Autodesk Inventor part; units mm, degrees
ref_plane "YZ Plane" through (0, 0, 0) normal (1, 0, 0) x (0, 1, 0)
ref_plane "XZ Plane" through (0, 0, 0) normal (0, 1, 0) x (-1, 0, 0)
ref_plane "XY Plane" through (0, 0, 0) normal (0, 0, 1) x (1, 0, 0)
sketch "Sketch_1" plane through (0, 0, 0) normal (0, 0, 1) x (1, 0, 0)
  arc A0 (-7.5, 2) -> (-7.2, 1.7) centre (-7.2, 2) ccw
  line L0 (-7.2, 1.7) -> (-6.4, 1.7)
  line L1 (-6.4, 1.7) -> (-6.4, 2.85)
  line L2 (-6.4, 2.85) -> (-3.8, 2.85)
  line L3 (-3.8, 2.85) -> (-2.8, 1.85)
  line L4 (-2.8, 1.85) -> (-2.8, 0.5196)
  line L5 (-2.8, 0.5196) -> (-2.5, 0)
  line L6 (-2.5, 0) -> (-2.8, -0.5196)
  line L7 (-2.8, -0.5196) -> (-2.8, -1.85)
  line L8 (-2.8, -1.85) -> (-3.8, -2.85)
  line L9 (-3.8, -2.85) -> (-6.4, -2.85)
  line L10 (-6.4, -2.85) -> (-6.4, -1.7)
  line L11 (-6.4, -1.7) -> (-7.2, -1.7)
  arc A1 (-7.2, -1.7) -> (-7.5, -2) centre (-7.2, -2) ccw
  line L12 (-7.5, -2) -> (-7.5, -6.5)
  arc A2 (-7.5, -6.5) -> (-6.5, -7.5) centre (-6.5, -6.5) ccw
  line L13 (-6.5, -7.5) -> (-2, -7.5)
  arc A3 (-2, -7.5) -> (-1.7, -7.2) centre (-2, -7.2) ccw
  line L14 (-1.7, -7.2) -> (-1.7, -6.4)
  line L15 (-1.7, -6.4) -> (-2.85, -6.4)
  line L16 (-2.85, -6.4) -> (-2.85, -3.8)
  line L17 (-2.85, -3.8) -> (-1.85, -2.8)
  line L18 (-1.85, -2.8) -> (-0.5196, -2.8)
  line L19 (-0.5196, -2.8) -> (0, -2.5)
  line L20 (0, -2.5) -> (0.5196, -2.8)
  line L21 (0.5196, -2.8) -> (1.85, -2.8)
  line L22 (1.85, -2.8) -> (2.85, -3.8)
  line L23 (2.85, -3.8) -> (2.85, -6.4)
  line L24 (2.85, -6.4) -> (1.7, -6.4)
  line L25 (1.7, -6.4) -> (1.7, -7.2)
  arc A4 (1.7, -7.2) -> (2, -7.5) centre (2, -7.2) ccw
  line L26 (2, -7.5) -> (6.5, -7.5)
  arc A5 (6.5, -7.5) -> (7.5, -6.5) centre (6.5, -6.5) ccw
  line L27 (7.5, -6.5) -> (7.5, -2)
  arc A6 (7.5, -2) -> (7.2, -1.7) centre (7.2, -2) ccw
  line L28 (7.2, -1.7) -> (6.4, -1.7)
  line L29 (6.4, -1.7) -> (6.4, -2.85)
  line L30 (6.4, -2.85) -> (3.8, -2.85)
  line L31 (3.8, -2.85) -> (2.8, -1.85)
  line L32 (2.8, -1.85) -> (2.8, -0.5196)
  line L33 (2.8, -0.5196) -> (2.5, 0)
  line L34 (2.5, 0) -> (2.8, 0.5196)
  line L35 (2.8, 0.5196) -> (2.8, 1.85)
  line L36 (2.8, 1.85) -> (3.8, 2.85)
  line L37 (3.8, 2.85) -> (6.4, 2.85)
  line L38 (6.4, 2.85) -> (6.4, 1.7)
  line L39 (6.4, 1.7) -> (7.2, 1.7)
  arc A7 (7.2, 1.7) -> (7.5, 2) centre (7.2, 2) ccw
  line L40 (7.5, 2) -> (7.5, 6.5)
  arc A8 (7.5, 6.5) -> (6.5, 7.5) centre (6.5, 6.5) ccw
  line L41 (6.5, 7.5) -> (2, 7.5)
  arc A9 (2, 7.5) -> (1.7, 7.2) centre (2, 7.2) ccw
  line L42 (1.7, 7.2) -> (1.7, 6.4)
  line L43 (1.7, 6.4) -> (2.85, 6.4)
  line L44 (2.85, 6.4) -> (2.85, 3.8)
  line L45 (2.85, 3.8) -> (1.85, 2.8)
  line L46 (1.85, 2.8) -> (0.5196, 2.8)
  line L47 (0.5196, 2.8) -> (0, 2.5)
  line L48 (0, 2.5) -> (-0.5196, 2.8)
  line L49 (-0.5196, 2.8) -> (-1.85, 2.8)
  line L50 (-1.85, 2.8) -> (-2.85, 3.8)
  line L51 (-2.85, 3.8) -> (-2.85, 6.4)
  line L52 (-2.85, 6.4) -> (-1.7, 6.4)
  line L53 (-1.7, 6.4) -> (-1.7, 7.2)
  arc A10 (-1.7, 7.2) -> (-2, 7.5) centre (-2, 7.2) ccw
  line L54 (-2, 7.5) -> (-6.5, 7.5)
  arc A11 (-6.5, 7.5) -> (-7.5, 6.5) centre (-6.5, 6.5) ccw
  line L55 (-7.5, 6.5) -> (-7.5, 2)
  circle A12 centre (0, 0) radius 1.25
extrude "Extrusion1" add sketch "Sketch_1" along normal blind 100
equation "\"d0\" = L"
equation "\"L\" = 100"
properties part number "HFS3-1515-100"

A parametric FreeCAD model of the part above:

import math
import FreeCAD as App
import Part
import Sketcher

V = App.Vector
Q = App.Units.Quantity

doc = App.newDocument("Part")
params = doc.addObject("Spreadsheet::Sheet", "Params")
for row, (alias, value) in enumerate([
    ("sketch1_radius", "1 mm"),
    ("sketch1_diameter", "2.5 mm"),
    ("sketch1_radius2", "0.3 mm"),
    ("sketch1_width", "0.8 mm"),
    ("sketch1_width2", "2.6 mm"),
    ("pad1_length", "100 mm"),
], start=1):
    params.set(f"A{row}", alias)
    params.set(f"B{row}", "=" + value)
    params.setAlias(f"B{row}", alias)

body = doc.addObject("PartDesign::Body", "Body")

# Sketch on XY plane
sketch1 = doc.addObject("Sketcher::SketchObject", "Sketch")
body.addObject(sketch1)
sketch1.AttachmentSupport = (doc.XY_Plane, [""])
sketch1.MapMode = "FlatFace"
sketch1.addGeometry([
    Part.LineSegment(V(-7.5, 6.5, 0), V(-7.5, 2, 0)),  # 0
    Part.ArcOfCircle(Part.Circle(V(-7.2, 2, 0), V(0, 0, 1), 0.3), math.radians(180), math.radians(270)),  # 1
    Part.LineSegment(V(-7.2, 1.7, 0), V(-6.4, 1.7, 0)),  # 2
    Part.LineSegment(V(-6.4, 1.7, 0), V(-6.4, 2.85, 0)),  # 3
    Part.LineSegment(V(-6.4, 2.85, 0), V(-3.8, 2.85, 0)),  # 4
    Part.LineSegment(V(-3.8, 2.85, 0), V(-2.8, 1.85, 0)),  # 5
    Part.LineSegment(V(-2.8, 1.85, 0), V(-2.8, 0.52, 0)),  # 6
    Part.LineSegment(V(-2.8, 0.52, 0), V(-2.5, 0, 0)),  # 7
    Part.LineSegment(V(-2.5, 0, 0), V(-2.8, -0.52, 0)),  # 8
    Part.LineSegment(V(-2.8, -0.52, 0), V(-2.8, -1.85, 0)),  # 9
    Part.LineSegment(V(-2.8, -1.85, 0), V(-3.8, -2.85, 0)),  # 10
    Part.LineSegment(V(-3.8, -2.85, 0), V(-6.4, -2.85, 0)),  # 11
    Part.LineSegment(V(-6.4, -2.85, 0), V(-6.4, -1.7, 0)),  # 12
    Part.LineSegment(V(-6.4, -1.7, 0), V(-7.2, -1.7, 0)),  # 13
    Part.ArcOfCircle(Part.Circle(V(-7.2, -2, 0), V(0, 0, 1), 0.3), math.radians(90), math.radians(180)),  # 14
    Part.LineSegment(V(-7.5, -2, 0), V(-7.5, -6.5, 0)),  # 15
    Part.ArcOfCircle(Part.Circle(V(-6.5, -6.5, 0), V(0, 0, 1), 1), math.radians(180), math.radians(270)),  # 16
    Part.LineSegment(V(-6.5, -7.5, 0), V(-2, -7.5, 0)),  # 17
    Part.ArcOfCircle(Part.Circle(V(-2, -7.2, 0), V(0, 0, 1), 0.3), math.radians(-90), math.radians(0)),  # 18
    Part.LineSegment(V(-1.7, -7.2, 0), V(-1.7, -6.4, 0)),  # 19
    Part.LineSegment(V(-1.7, -6.4, 0), V(-2.85, -6.4, 0)),  # 20
    Part.LineSegment(V(-2.85, -6.4, 0), V(-2.85, -3.8, 0)),  # 21
    Part.LineSegment(V(-2.85, -3.8, 0), V(-1.85, -2.8, 0)),  # 22
    Part.LineSegment(V(-1.85, -2.8, 0), V(-0.52, -2.8, 0)),  # 23
    Part.LineSegment(V(-0.52, -2.8, 0), V(0, -2.5, 0)),  # 24
    Part.LineSegment(V(0, -2.5, 0), V(0.52, -2.8, 0)),  # 25
    Part.LineSegment(V(0.52, -2.8, 0), V(1.85, -2.8, 0)),  # 26
    Part.LineSegment(V(1.85, -2.8, 0), V(2.85, -3.8, 0)),  # 27
    Part.LineSegment(V(2.85, -3.8, 0), V(2.85, -6.4, 0)),  # 28
    Part.LineSegment(V(2.85, -6.4, 0), V(1.7, -6.4, 0)),  # 29
    Part.LineSegment(V(1.7, -6.4, 0), V(1.7, -7.2, 0)),  # 30
    Part.ArcOfCircle(Part.Circle(V(2, -7.2, 0), V(0, 0, 1), 0.3), math.radians(180), math.radians(270)),  # 31
    Part.LineSegment(V(2, -7.5, 0), V(6.5, -7.5, 0)),  # 32
    Part.ArcOfCircle(Part.Circle(V(6.5, -6.5, 0), V(0, 0, 1), 1), math.radians(-90), math.radians(0)),  # 33
    Part.LineSegment(V(7.5, -6.5, 0), V(7.5, -2, 0)),  # 34
    Part.ArcOfCircle(Part.Circle(V(7.2, -2, 0), V(0, 0, 1), 0.3), math.radians(0), math.radians(90)),  # 35
    Part.LineSegment(V(7.2, -1.7, 0), V(6.4, -1.7, 0)),  # 36
    Part.LineSegment(V(6.4, -1.7, 0), V(6.4, -2.85, 0)),  # 37
    Part.LineSegment(V(6.4, -2.85, 0), V(3.8, -2.85, 0)),  # 38
    Part.LineSegment(V(3.8, -2.85, 0), V(2.8, -1.85, 0)),  # 39
    Part.LineSegment(V(2.8, -1.85, 0), V(2.8, -0.52, 0)),  # 40
    Part.LineSegment(V(2.8, -0.52, 0), V(2.5, 0, 0)),  # 41
    Part.LineSegment(V(2.5, 0, 0), V(2.8, 0.52, 0)),  # 42
    Part.LineSegment(V(2.8, 0.52, 0), V(2.8, 1.85, 0)),  # 43
    Part.LineSegment(V(2.8, 1.85, 0), V(3.8, 2.85, 0)),  # 44
    Part.LineSegment(V(3.8, 2.85, 0), V(6.4, 2.85, 0)),  # 45
    Part.LineSegment(V(6.4, 2.85, 0), V(6.4, 1.7, 0)),  # 46
    Part.LineSegment(V(6.4, 1.7, 0), V(7.2, 1.7, 0)),  # 47
    Part.ArcOfCircle(Part.Circle(V(7.2, 2, 0), V(0, 0, 1), 0.3), math.radians(-90), math.radians(0)),  # 48
    Part.LineSegment(V(7.5, 2, 0), V(7.5, 6.5, 0)),  # 49
    Part.ArcOfCircle(Part.Circle(V(6.5, 6.5, 0), V(0, 0, 1), 1), math.radians(0), math.radians(90)),  # 50
    Part.LineSegment(V(6.5, 7.5, 0), V(2, 7.5, 0)),  # 51
    Part.ArcOfCircle(Part.Circle(V(2, 7.2, 0), V(0, 0, 1), 0.3), math.radians(90), math.radians(180)),  # 52
    Part.LineSegment(V(1.7, 7.2, 0), V(1.7, 6.4, 0)),  # 53
    Part.LineSegment(V(1.7, 6.4, 0), V(2.85, 6.4, 0)),  # 54
    Part.LineSegment(V(2.85, 6.4, 0), V(2.85, 3.8, 0)),  # 55
    Part.LineSegment(V(2.85, 3.8, 0), V(1.85, 2.8, 0)),  # 56
    Part.LineSegment(V(1.85, 2.8, 0), V(0.52, 2.8, 0)),  # 57
    Part.LineSegment(V(0.52, 2.8, 0), V(0, 2.5, 0)),  # 58
    Part.LineSegment(V(0, 2.5, 0), V(-0.52, 2.8, 0)),  # 59
    Part.LineSegment(V(-0.52, 2.8, 0), V(-1.85, 2.8, 0)),  # 60
    Part.LineSegment(V(-1.85, 2.8, 0), V(-2.85, 3.8, 0)),  # 61
    Part.LineSegment(V(-2.85, 3.8, 0), V(-2.85, 6.4, 0)),  # 62
    Part.LineSegment(V(-2.85, 6.4, 0), V(-1.7, 6.4, 0)),  # 63
    Part.LineSegment(V(-1.7, 6.4, 0), V(-1.7, 7.2, 0)),  # 64
    Part.ArcOfCircle(Part.Circle(V(-2, 7.2, 0), V(0, 0, 1), 0.3), math.radians(0), math.radians(90)),  # 65
    Part.LineSegment(V(-2, 7.5, 0), V(-6.5, 7.5, 0)),  # 66
    Part.ArcOfCircle(Part.Circle(V(-6.5, 6.5, 0), V(0, 0, 1), 1), math.radians(90), math.radians(180)),  # 67
    Part.Circle(V(0, 0, 0), V(0, 0, 1), 1.25),  # 68
], False)
sketch1.addConstraint([
    Sketcher.Constraint("Tangent", 0, 2, 1, 1),
    Sketcher.Constraint("Tangent", 1, 2, 2, 1),
    Sketcher.Constraint("Coincident", 2, 2, 3, 1),
    Sketcher.Constraint("Coincident", 3, 2, 4, 1),
    Sketcher.Constraint("Coincident", 4, 2, 5, 1),
    Sketcher.Constraint("Coincident", 5, 2, 6, 1),
    Sketcher.Constraint("Coincident", 6, 2, 7, 1),
    Sketcher.Constraint("Coincident", 7, 2, 8, 1),
    Sketcher.Constraint("Coincident", 8, 2, 9, 1),
    Sketcher.Constraint("Coincident", 9, 2, 10, 1),
    Sketcher.Constraint("Coincident", 10, 2, 11, 1),
    Sketcher.Constraint("Coincident", 11, 2, 12, 1),
    Sketcher.Constraint("Coincident", 12, 2, 13, 1),
    Sketcher.Constraint("Tangent", 13, 2, 14, 1),
    Sketcher.Constraint("Tangent", 14, 2, 15, 1),
    Sketcher.Constraint("Tangent", 15, 2, 16, 1),
    Sketcher.Constraint("Tangent", 16, 2, 17, 1),
    Sketcher.Constraint("Tangent", 17, 2, 18, 1),
    Sketcher.Constraint("Tangent", 18, 2, 19, 1),
    Sketcher.Constraint("Coincident", 19, 2, 20, 1),
    Sketcher.Constraint("Coincident", 20, 2, 21, 1),
    Sketcher.Constraint("Coincident", 21, 2, 22, 1),
    Sketcher.Constraint("Coincident", 22, 2, 23, 1),
    Sketcher.Constraint("Coincident", 23, 2, 24, 1),
    Sketcher.Constraint("Coincident", 24, 2, 25, 1),
    Sketcher.Constraint("Coincident", 25, 2, 26, 1),
    Sketcher.Constraint("Coincident", 26, 2, 27, 1),
    Sketcher.Constraint("Coincident", 27, 2, 28, 1),
    Sketcher.Constraint("Coincident", 28, 2, 29, 1),
    Sketcher.Constraint("Coincident", 29, 2, 30, 1),
    Sketcher.Constraint("Tangent", 30, 2, 31, 1),
    Sketcher.Constraint("Tangent", 31, 2, 32, 1),
    Sketcher.Constraint("Tangent", 32, 2, 33, 1),
    Sketcher.Constraint("Tangent", 33, 2, 34, 1),
    Sketcher.Constraint("Tangent", 34, 2, 35, 1),
    Sketcher.Constraint("Tangent", 35, 2, 36, 1),
    Sketcher.Constraint("Coincident", 36, 2, 37, 1),
    Sketcher.Constraint("Coincident", 37, 2, 38, 1),
    Sketcher.Constraint("Coincident", 38, 2, 39, 1),
    Sketcher.Constraint("Coincident", 39, 2, 40, 1),
    Sketcher.Constraint("Coincident", 40, 2, 41, 1),
    Sketcher.Constraint("Coincident", 41, 2, 42, 1),
    Sketcher.Constraint("Coincident", 42, 2, 43, 1),
    Sketcher.Constraint("Coincident", 43, 2, 44, 1),
    Sketcher.Constraint("Coincident", 44, 2, 45, 1),
    Sketcher.Constraint("Coincident", 45, 2, 46, 1),
    Sketcher.Constraint("Coincident", 46, 2, 47, 1),
    Sketcher.Constraint("Tangent", 47, 2, 48, 1),
    Sketcher.Constraint("Tangent", 48, 2, 49, 1),
    Sketcher.Constraint("Tangent", 49, 2, 50, 1),
    Sketcher.Constraint("Tangent", 50, 2, 51, 1),
    Sketcher.Constraint("Tangent", 51, 2, 52, 1),
    Sketcher.Constraint("Tangent", 52, 2, 53, 1),
    Sketcher.Constraint("Coincident", 53, 2, 54, 1),
    Sketcher.Constraint("Coincident", 54, 2, 55, 1),
    Sketcher.Constraint("Coincident", 55, 2, 56, 1),
    Sketcher.Constraint("Coincident", 56, 2, 57, 1),
    Sketcher.Constraint("Coincident", 57, 2, 58, 1),
    Sketcher.Constraint("Coincident", 58, 2, 59, 1),
    Sketcher.Constraint("Coincident", 59, 2, 60, 1),
    Sketcher.Constraint("Coincident", 60, 2, 61, 1),
    Sketcher.Constraint("Coincident", 61, 2, 62, 1),
    Sketcher.Constraint("Coincident", 62, 2, 63, 1),
    Sketcher.Constraint("Coincident", 63, 2, 64, 1),
    Sketcher.Constraint("Tangent", 64, 2, 65, 1),
    Sketcher.Constraint("Tangent", 65, 2, 66, 1),
    Sketcher.Constraint("Tangent", 66, 2, 67, 1),
    Sketcher.Constraint("Tangent", 67, 2, 0, 1),
    Sketcher.Constraint("Vertical", 0),
    Sketcher.Constraint("Horizontal", 2),
    Sketcher.Constraint("Vertical", 3),
    Sketcher.Constraint("Horizontal", 4),
    Sketcher.Constraint("Vertical", 6),
    Sketcher.Constraint("Vertical", 9),
    Sketcher.Constraint("Horizontal", 11),
    Sketcher.Constraint("Vertical", 12),
    Sketcher.Constraint("Horizontal", 13),
    Sketcher.Constraint("Vertical", 15),
    Sketcher.Constraint("Horizontal", 17),
    Sketcher.Constraint("Vertical", 19),
    Sketcher.Constraint("Horizontal", 20),
    Sketcher.Constraint("Vertical", 21),
    Sketcher.Constraint("Horizontal", 23),
    Sketcher.Constraint("Horizontal", 26),
    Sketcher.Constraint("Vertical", 28),
    Sketcher.Constraint("Horizontal", 29),
    Sketcher.Constraint("Vertical", 30),
    Sketcher.Constraint("Horizontal", 32),
    Sketcher.Constraint("Vertical", 34),
    Sketcher.Constraint("Horizontal", 36),
    Sketcher.Constraint("Vertical", 37),
    Sketcher.Constraint("Horizontal", 38),
    Sketcher.Constraint("Vertical", 40),
    Sketcher.Constraint("Vertical", 43),
    Sketcher.Constraint("Horizontal", 45),
    Sketcher.Constraint("Vertical", 46),
    Sketcher.Constraint("Horizontal", 47),
    Sketcher.Constraint("Vertical", 49),
    Sketcher.Constraint("Horizontal", 51),
    Sketcher.Constraint("Vertical", 53),
    Sketcher.Constraint("Horizontal", 54),
    Sketcher.Constraint("Vertical", 55),
    Sketcher.Constraint("Horizontal", 57),
    Sketcher.Constraint("Horizontal", 60),
    Sketcher.Constraint("Vertical", 62),
    Sketcher.Constraint("Horizontal", 63),
    Sketcher.Constraint("Vertical", 64),
    Sketcher.Constraint("Horizontal", 66),
    Sketcher.Constraint("Coincident", 68, 3, -1, 1),
    Sketcher.Constraint("Equal", 1, 14),
    Sketcher.Constraint("Equal", 14, 18),
    Sketcher.Constraint("Equal", 18, 31),
    Sketcher.Constraint("Equal", 16, 33),
    Sketcher.Constraint("Equal", 31, 35),
    Sketcher.Constraint("Equal", 35, 48),
    Sketcher.Constraint("Equal", 33, 50),
    Sketcher.Constraint("Equal", 48, 52),
    Sketcher.Constraint("Equal", 52, 65),
    Sketcher.Constraint("Equal", 50, 67),
    Sketcher.Constraint("Symmetric", 1, 3, 35, 3, -1, 1),
    Sketcher.Constraint("Symmetric", 14, 3, 48, 3, -1, 1),
    Sketcher.Constraint("Symmetric", 18, 3, 52, 3, -1, 1),
    Sketcher.Constraint("Symmetric", 31, 3, 65, 3, -1, 1),
    Sketcher.Constraint("Symmetric", 3, 2, 37, 2, -1, 1),
    Sketcher.Constraint("Symmetric", 5, 2, 39, 2, -1, 1),
    Sketcher.Constraint("Symmetric", 7, 2, 41, 2, -1, 1),
    Sketcher.Constraint("Symmetric", 8, 2, 42, 2, -1, 1),
    Sketcher.Constraint("Symmetric", 10, 2, 44, 2, -1, 1),
    Sketcher.Constraint("Symmetric", 20, 2, 54, 2, -1, 1),
    Sketcher.Constraint("Symmetric", 22, 2, 56, 2, -1, 1),
    Sketcher.Constraint("Symmetric", 24, 2, 58, 2, -1, 1),
    Sketcher.Constraint("Symmetric", 25, 2, 59, 2, -1, 1),
    Sketcher.Constraint("Symmetric", 27, 2, 61, 2, -1, 1),
    Sketcher.Constraint("Symmetric", 18, 3, 31, 3, -2),
    Sketcher.Constraint("Symmetric", 14, 3, 35, 3, -2),
    Sketcher.Constraint("Symmetric", 23, 2, 25, 2, -2),
    Sketcher.Constraint("Symmetric", 21, 2, 27, 2, -2),
    Sketcher.Constraint("Symmetric", 11, 2, 37, 2, -2),
    Sketcher.Constraint("Symmetric", 9, 2, 39, 2, -2),
    Sketcher.Constraint("PointOnObject", 7, 2, -1),
    Sketcher.Constraint("PointOnObject", 24, 2, -2),
    Sketcher.Constraint("Perpendicular", 5, 10),
    Sketcher.Constraint("Parallel", 10, 22),
    Sketcher.Constraint("Perpendicular", 7, 24),
    Sketcher.Constraint("Perpendicular", 8, 25),
    Sketcher.Constraint("Perpendicular", 22, 27),
    Sketcher.Constraint("Parallel", 27, 39),
    Sketcher.Constraint("Perpendicular", 24, 41),
    Sketcher.Constraint("Perpendicular", 39, 44),
    Sketcher.Constraint("Parallel", 44, 56),
    Sketcher.Constraint("Perpendicular", 41, 58),
    Sketcher.Constraint("Perpendicular", 56, 61),
    Sketcher.Constraint("Horizontal", 20, 2, 28, 2),
    Sketcher.Constraint("Horizontal", 54, 2, 62, 2),
    Sketcher.Constraint("Vertical", 4, 2, 10, 2),
    Sketcher.Constraint("Vertical", 37, 2, 45, 2),
    Sketcher.Constraint("Equal", 66, 0),
    Sketcher.Constraint("Equal", 63, 3),
    Sketcher.Constraint("Equal", 60, 6),
    Sketcher.Constraint("Equal", 47, 19),
    Sketcher.Constraint("Equal", 45, 21),
    Sketcher.Constraint("Equal", 10, 22),
    Sketcher.Constraint("Equal", 8, 24),
    Sketcher.Constraint("Radius", 16, Q("1 mm")),
    Sketcher.Constraint("Diameter", 68, Q("2.5 mm")),
    Sketcher.Constraint("Radius", 1, Q("0.3 mm")),
    Sketcher.Constraint("Angle", 7, Q("-59.9993 deg")),
    Sketcher.Constraint("DistanceX", 2, 1, 2, 2, Q("0.8 mm")),
    Sketcher.Constraint("DistanceX", 4, 1, 4, 2, Q("2.6 mm")),
    Sketcher.Constraint("DistanceX", 17, 1, 17, 2, Q("4.5 mm")),
    Sketcher.Constraint("DistanceY", -1, 1, 1, 3, Q("2 mm")),
    Sketcher.Constraint("Distance", 7, Q("0.6 mm")),
    Sketcher.Constraint("DistanceX", 20, 2, 20, 1, Q("1.15 mm")),
    Sketcher.Constraint("DistanceX", 5, 2, -1, 1, Q("2.8 mm")),
])
sketch1.setExpression("Constraints[163]", "Params.sketch1_radius")
sketch1.setExpression("Constraints[164]", "Params.sketch1_diameter")
sketch1.setExpression("Constraints[165]", "Params.sketch1_radius2")
sketch1.setExpression("Constraints[167]", "Params.sketch1_width")
sketch1.setExpression("Constraints[168]", "Params.sketch1_width2")
pad1 = doc.addObject("PartDesign::Pad", "Pad")
body.addObject(pad1)
pad1.Profile = sketch1
pad1.setExpression("Length", "Params.pad1_length")

doc.recompute()
